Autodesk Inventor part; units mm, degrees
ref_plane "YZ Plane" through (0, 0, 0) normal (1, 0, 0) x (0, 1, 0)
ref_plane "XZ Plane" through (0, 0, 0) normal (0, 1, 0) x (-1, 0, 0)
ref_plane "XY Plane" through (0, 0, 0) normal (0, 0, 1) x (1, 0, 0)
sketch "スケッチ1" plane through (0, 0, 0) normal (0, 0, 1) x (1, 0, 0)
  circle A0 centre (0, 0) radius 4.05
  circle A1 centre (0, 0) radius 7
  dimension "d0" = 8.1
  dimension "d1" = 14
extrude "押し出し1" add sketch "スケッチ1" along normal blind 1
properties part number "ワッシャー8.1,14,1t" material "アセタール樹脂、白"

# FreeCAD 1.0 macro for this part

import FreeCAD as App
import Part
import Sketcher

doc = App.newDocument("Part")
body = doc.addObject("PartDesign::Body", "Body")

# Sketch on XY plane
sketch1 = body.newObject("Sketcher::SketchObject", "Sketch")
sketch1.AttachmentSupport = (doc.getObject("XY_Plane"), [""])
sketch1.MapMode = "FlatFace"
sketch1.addGeometry([
    Part.Circle(App.Vector(0, 0, 0), App.Vector(0, 0, 1), 7),
    Part.Circle(App.Vector(0, 0, 0), App.Vector(0, 0, 1), 4),
], False)
sketch1.addConstraint([
    Sketcher.Constraint("Coincident", 0, 3, -1, 1),
    Sketcher.Constraint("Coincident", 1, 3, -1, 1),
    Sketcher.Constraint("Diameter", 0, 14.0),
    Sketcher.Constraint("Diameter", 1, 8.1),
])
pad1 = body.newObject("PartDesign::Pad", "Pad")
pad1.Profile = sketch1
pad1.Length = 1

doc.recompute()
